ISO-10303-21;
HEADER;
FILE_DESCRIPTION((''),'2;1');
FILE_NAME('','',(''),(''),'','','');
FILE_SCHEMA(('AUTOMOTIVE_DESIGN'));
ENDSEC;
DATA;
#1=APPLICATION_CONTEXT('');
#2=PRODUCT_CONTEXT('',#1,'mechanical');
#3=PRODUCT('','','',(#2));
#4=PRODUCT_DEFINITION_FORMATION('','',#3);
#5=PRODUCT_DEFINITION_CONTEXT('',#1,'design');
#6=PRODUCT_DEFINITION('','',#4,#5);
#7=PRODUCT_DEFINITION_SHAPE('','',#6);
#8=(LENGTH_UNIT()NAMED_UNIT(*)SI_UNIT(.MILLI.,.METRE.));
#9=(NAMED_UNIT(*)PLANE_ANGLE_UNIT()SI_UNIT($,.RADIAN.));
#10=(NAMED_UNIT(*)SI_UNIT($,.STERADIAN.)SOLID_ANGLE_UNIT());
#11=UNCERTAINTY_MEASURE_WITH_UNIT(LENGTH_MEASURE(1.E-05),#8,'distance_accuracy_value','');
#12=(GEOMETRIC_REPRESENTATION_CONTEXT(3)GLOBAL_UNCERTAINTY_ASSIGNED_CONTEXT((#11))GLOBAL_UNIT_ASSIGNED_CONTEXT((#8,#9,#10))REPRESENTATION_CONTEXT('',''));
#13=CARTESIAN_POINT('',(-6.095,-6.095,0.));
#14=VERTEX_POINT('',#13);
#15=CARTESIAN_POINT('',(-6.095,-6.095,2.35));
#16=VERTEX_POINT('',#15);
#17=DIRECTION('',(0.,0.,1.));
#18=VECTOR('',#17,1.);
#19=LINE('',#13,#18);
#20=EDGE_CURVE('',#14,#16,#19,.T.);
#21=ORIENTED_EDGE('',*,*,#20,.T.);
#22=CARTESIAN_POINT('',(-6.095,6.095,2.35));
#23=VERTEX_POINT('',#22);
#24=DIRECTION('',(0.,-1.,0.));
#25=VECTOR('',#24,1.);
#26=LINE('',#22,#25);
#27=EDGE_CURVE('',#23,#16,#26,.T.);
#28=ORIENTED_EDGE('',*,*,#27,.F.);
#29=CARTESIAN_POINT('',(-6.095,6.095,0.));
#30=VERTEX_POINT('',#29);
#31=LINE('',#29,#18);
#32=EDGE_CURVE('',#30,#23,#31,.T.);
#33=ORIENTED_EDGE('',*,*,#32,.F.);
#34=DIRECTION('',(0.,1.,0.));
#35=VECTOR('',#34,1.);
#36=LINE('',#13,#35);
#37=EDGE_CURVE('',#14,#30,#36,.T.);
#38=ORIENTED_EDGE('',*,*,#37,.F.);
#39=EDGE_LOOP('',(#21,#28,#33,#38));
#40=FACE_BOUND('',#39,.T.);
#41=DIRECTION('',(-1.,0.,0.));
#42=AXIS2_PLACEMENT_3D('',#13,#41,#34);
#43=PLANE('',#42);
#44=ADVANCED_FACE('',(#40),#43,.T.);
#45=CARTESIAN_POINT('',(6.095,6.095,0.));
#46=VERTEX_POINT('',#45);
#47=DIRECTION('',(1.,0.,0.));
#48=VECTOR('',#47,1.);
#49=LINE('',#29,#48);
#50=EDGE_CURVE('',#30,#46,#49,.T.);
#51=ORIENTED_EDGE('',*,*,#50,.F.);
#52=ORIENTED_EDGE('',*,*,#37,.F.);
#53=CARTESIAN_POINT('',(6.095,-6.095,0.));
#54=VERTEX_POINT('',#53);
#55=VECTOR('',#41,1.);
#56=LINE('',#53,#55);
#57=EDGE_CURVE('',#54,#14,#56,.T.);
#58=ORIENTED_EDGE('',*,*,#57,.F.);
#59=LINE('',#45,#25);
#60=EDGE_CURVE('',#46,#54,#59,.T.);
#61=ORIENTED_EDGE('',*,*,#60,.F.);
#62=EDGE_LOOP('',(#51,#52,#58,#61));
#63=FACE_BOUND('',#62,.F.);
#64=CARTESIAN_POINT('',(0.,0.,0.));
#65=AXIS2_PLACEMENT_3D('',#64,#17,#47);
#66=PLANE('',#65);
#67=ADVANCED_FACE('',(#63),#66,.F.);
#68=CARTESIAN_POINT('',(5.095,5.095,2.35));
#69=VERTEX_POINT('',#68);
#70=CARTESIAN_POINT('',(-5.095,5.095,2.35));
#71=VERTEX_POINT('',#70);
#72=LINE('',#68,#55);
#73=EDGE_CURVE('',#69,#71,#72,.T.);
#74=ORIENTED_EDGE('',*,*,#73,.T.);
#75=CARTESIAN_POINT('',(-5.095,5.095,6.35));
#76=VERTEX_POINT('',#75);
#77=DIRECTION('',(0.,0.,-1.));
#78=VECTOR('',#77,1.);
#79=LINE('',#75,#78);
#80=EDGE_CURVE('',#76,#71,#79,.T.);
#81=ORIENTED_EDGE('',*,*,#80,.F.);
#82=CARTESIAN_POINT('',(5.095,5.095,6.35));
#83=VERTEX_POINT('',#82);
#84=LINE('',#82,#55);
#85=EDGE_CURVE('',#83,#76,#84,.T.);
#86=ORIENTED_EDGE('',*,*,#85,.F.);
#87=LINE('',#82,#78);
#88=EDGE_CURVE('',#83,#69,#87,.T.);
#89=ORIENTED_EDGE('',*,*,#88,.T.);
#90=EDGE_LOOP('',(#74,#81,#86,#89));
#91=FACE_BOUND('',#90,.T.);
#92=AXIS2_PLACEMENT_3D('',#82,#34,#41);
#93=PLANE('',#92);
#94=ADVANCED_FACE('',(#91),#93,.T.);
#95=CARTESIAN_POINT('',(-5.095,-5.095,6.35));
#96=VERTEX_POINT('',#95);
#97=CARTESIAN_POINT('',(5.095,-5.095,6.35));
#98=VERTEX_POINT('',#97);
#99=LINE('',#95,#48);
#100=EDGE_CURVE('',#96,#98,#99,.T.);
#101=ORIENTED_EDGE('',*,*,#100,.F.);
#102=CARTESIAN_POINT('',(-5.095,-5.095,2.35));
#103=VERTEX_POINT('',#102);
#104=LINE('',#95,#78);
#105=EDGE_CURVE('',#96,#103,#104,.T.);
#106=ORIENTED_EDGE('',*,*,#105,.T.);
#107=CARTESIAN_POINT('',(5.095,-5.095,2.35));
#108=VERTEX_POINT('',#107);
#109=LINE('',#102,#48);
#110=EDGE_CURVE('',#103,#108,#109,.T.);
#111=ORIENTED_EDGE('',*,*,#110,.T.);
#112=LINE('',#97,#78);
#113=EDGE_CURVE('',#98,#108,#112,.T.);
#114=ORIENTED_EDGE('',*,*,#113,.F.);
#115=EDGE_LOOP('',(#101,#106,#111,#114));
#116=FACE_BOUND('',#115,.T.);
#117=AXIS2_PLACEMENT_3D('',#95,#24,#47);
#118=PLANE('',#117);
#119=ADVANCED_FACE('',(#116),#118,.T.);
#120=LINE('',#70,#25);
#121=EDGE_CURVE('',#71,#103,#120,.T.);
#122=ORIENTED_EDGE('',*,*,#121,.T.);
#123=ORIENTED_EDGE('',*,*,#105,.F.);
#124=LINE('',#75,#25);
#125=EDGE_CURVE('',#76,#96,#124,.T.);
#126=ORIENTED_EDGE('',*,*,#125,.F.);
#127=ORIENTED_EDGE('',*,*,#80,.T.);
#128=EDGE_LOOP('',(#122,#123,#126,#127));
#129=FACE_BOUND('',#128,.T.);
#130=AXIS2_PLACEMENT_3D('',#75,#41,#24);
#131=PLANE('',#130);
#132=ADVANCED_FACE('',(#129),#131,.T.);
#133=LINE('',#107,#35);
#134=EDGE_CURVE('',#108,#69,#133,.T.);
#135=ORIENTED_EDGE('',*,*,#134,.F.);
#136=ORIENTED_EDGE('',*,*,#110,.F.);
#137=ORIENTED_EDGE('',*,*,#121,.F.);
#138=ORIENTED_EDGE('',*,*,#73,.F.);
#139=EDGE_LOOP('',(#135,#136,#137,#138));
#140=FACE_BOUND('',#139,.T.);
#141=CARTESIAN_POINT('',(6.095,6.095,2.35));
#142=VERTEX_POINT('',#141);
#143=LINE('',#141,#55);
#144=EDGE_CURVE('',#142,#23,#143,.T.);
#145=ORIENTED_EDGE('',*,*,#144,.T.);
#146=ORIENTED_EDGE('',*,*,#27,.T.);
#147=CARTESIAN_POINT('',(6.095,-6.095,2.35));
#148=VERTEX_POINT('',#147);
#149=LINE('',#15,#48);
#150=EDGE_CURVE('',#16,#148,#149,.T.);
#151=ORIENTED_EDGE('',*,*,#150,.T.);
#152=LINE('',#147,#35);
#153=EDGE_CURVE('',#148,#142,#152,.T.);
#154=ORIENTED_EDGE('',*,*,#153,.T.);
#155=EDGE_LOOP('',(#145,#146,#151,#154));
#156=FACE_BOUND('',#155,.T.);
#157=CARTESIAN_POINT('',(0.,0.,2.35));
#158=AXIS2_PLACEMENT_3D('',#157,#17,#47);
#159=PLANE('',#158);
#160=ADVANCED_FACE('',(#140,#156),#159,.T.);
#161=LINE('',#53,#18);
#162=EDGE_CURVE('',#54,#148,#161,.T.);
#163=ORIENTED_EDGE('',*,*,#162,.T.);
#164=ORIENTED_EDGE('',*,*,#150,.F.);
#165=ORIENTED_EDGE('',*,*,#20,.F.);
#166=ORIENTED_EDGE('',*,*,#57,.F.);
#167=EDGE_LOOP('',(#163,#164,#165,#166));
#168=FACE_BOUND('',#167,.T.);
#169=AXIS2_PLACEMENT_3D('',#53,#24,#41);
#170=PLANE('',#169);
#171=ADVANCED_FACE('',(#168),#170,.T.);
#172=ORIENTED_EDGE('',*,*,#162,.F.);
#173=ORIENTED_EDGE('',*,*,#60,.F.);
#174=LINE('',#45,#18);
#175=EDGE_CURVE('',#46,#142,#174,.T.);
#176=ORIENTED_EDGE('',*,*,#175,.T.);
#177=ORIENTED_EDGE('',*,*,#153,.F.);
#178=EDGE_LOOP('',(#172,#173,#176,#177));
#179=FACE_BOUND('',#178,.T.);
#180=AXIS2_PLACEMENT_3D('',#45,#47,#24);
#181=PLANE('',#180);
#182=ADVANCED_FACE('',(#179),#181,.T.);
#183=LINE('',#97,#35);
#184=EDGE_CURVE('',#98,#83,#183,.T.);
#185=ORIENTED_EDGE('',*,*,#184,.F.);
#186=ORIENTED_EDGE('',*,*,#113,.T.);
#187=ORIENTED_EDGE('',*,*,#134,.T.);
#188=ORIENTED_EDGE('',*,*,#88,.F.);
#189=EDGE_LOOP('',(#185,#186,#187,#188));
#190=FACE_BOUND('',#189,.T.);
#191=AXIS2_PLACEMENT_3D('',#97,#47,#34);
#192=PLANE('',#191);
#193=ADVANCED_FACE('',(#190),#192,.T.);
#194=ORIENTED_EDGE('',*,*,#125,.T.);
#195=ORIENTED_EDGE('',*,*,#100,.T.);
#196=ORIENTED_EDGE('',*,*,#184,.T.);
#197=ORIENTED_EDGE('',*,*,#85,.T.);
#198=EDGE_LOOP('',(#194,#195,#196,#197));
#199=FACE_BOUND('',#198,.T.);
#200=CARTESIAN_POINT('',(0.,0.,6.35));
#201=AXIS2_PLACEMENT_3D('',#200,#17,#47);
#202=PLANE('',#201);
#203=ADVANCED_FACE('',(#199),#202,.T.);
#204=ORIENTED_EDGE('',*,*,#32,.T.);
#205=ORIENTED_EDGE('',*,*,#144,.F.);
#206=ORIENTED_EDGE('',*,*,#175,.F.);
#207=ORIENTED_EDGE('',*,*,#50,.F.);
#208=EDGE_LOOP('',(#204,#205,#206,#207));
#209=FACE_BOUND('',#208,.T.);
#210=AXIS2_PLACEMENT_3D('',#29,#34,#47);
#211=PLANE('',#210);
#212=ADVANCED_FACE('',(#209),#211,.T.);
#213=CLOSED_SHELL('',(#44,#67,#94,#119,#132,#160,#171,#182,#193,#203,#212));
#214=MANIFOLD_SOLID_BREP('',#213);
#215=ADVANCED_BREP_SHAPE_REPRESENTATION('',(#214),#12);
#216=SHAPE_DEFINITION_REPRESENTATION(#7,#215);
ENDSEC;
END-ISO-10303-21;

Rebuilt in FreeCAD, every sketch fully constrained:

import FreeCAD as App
import Part
import Sketcher

V = App.Vector


def add_polygon(sketch, points):
    """Adds a closed chain of lines whose ends are joined by coincident constraints."""
    first, n = sketch.GeometryCount, len(points)
    for a, b in zip(points, points[1:] + points[:1]):
        sketch.addGeometry(Part.LineSegment(App.Vector(*a, 0), App.Vector(*b, 0)), False)
    for i in range(n):
        sketch.addConstraint(Sketcher.Constraint("Coincident", first + i, 2, first + (i + 1) % n, 1))

doc = App.newDocument("Part")
body = doc.addObject("PartDesign::Body", "Body")

sketch1 = doc.addObject("Sketcher::SketchObject", "Sketch")
body.addObject(sketch1)
sketch1.AttachmentSupport = (doc.XY_Plane, [""])
sketch1.MapMode = "FlatFace"
add_polygon(sketch1, [(6, 6), (-6, 6), (-6, -6), (6, -6)])
sketch1.addConstraint([
    Sketcher.Constraint("Horizontal", 0),
    Sketcher.Constraint("Vertical", 1),
    Sketcher.Constraint("Horizontal", 2),
    Sketcher.Constraint("Vertical", 3),
    Sketcher.Constraint("Symmetric", 0, 2, 2, 2, -1, 1),
    Sketcher.Constraint("Equal", 2, 1),
    Sketcher.Constraint("DistanceX", 0, 2, 0, 1, 12.19),
])
pad1 = doc.addObject("PartDesign::Pad", "Pad")
body.addObject(pad1)
pad1.Profile = sketch1
pad1.Length = 6.35

sketch2 = doc.addObject("Sketcher::SketchObject", "Sketch001")
body.addObject(sketch2)
sketch2.AttachmentSupport = (doc.XY_Plane, [""])
sketch2.MapMode = "FlatFace"
sketch2.AttachmentOffset = App.Placement(V(0, 0, 6.35), App.Rotation())
add_polygon(sketch2, [(6, -6), (6, 6), (-6, 6), (-6, -6)])
add_polygon(sketch2, [(5, -5), (-5, -5), (-5, 5), (5, 5)])
sketch2.addConstraint([
    Sketcher.Constraint("Vertical", 0),
    Sketcher.Constraint("Horizontal", 1),
    Sketcher.Constraint("Vertical", 2),
    Sketcher.Constraint("Horizontal", 3),
    Sketcher.Constraint("Horizontal", 4),
    Sketcher.Constraint("Vertical", 5),
    Sketcher.Constraint("Horizontal", 6),
    Sketcher.Constraint("Vertical", 7),
    Sketcher.Constraint("Symmetric", 0, 2, 2, 2, -1, 1),
    Sketcher.Constraint("Symmetric", 4, 2, 6, 2, -1, 1),
    Sketcher.Constraint("Equal", 3, 0),
    Sketcher.Constraint("Equal", 6, 5),
    Sketcher.Constraint("DistanceX", 2, 2, 4, 2, 1.0),
    Sketcher.Constraint("DistanceX", 1, 2, 1, 1, 12.19),
])
pocket1 = doc.addObject("PartDesign::Pocket", "Pocket")
body.addObject(pocket1)
pocket1.Profile = sketch2
pocket1.Length = 4

doc.recompute()
